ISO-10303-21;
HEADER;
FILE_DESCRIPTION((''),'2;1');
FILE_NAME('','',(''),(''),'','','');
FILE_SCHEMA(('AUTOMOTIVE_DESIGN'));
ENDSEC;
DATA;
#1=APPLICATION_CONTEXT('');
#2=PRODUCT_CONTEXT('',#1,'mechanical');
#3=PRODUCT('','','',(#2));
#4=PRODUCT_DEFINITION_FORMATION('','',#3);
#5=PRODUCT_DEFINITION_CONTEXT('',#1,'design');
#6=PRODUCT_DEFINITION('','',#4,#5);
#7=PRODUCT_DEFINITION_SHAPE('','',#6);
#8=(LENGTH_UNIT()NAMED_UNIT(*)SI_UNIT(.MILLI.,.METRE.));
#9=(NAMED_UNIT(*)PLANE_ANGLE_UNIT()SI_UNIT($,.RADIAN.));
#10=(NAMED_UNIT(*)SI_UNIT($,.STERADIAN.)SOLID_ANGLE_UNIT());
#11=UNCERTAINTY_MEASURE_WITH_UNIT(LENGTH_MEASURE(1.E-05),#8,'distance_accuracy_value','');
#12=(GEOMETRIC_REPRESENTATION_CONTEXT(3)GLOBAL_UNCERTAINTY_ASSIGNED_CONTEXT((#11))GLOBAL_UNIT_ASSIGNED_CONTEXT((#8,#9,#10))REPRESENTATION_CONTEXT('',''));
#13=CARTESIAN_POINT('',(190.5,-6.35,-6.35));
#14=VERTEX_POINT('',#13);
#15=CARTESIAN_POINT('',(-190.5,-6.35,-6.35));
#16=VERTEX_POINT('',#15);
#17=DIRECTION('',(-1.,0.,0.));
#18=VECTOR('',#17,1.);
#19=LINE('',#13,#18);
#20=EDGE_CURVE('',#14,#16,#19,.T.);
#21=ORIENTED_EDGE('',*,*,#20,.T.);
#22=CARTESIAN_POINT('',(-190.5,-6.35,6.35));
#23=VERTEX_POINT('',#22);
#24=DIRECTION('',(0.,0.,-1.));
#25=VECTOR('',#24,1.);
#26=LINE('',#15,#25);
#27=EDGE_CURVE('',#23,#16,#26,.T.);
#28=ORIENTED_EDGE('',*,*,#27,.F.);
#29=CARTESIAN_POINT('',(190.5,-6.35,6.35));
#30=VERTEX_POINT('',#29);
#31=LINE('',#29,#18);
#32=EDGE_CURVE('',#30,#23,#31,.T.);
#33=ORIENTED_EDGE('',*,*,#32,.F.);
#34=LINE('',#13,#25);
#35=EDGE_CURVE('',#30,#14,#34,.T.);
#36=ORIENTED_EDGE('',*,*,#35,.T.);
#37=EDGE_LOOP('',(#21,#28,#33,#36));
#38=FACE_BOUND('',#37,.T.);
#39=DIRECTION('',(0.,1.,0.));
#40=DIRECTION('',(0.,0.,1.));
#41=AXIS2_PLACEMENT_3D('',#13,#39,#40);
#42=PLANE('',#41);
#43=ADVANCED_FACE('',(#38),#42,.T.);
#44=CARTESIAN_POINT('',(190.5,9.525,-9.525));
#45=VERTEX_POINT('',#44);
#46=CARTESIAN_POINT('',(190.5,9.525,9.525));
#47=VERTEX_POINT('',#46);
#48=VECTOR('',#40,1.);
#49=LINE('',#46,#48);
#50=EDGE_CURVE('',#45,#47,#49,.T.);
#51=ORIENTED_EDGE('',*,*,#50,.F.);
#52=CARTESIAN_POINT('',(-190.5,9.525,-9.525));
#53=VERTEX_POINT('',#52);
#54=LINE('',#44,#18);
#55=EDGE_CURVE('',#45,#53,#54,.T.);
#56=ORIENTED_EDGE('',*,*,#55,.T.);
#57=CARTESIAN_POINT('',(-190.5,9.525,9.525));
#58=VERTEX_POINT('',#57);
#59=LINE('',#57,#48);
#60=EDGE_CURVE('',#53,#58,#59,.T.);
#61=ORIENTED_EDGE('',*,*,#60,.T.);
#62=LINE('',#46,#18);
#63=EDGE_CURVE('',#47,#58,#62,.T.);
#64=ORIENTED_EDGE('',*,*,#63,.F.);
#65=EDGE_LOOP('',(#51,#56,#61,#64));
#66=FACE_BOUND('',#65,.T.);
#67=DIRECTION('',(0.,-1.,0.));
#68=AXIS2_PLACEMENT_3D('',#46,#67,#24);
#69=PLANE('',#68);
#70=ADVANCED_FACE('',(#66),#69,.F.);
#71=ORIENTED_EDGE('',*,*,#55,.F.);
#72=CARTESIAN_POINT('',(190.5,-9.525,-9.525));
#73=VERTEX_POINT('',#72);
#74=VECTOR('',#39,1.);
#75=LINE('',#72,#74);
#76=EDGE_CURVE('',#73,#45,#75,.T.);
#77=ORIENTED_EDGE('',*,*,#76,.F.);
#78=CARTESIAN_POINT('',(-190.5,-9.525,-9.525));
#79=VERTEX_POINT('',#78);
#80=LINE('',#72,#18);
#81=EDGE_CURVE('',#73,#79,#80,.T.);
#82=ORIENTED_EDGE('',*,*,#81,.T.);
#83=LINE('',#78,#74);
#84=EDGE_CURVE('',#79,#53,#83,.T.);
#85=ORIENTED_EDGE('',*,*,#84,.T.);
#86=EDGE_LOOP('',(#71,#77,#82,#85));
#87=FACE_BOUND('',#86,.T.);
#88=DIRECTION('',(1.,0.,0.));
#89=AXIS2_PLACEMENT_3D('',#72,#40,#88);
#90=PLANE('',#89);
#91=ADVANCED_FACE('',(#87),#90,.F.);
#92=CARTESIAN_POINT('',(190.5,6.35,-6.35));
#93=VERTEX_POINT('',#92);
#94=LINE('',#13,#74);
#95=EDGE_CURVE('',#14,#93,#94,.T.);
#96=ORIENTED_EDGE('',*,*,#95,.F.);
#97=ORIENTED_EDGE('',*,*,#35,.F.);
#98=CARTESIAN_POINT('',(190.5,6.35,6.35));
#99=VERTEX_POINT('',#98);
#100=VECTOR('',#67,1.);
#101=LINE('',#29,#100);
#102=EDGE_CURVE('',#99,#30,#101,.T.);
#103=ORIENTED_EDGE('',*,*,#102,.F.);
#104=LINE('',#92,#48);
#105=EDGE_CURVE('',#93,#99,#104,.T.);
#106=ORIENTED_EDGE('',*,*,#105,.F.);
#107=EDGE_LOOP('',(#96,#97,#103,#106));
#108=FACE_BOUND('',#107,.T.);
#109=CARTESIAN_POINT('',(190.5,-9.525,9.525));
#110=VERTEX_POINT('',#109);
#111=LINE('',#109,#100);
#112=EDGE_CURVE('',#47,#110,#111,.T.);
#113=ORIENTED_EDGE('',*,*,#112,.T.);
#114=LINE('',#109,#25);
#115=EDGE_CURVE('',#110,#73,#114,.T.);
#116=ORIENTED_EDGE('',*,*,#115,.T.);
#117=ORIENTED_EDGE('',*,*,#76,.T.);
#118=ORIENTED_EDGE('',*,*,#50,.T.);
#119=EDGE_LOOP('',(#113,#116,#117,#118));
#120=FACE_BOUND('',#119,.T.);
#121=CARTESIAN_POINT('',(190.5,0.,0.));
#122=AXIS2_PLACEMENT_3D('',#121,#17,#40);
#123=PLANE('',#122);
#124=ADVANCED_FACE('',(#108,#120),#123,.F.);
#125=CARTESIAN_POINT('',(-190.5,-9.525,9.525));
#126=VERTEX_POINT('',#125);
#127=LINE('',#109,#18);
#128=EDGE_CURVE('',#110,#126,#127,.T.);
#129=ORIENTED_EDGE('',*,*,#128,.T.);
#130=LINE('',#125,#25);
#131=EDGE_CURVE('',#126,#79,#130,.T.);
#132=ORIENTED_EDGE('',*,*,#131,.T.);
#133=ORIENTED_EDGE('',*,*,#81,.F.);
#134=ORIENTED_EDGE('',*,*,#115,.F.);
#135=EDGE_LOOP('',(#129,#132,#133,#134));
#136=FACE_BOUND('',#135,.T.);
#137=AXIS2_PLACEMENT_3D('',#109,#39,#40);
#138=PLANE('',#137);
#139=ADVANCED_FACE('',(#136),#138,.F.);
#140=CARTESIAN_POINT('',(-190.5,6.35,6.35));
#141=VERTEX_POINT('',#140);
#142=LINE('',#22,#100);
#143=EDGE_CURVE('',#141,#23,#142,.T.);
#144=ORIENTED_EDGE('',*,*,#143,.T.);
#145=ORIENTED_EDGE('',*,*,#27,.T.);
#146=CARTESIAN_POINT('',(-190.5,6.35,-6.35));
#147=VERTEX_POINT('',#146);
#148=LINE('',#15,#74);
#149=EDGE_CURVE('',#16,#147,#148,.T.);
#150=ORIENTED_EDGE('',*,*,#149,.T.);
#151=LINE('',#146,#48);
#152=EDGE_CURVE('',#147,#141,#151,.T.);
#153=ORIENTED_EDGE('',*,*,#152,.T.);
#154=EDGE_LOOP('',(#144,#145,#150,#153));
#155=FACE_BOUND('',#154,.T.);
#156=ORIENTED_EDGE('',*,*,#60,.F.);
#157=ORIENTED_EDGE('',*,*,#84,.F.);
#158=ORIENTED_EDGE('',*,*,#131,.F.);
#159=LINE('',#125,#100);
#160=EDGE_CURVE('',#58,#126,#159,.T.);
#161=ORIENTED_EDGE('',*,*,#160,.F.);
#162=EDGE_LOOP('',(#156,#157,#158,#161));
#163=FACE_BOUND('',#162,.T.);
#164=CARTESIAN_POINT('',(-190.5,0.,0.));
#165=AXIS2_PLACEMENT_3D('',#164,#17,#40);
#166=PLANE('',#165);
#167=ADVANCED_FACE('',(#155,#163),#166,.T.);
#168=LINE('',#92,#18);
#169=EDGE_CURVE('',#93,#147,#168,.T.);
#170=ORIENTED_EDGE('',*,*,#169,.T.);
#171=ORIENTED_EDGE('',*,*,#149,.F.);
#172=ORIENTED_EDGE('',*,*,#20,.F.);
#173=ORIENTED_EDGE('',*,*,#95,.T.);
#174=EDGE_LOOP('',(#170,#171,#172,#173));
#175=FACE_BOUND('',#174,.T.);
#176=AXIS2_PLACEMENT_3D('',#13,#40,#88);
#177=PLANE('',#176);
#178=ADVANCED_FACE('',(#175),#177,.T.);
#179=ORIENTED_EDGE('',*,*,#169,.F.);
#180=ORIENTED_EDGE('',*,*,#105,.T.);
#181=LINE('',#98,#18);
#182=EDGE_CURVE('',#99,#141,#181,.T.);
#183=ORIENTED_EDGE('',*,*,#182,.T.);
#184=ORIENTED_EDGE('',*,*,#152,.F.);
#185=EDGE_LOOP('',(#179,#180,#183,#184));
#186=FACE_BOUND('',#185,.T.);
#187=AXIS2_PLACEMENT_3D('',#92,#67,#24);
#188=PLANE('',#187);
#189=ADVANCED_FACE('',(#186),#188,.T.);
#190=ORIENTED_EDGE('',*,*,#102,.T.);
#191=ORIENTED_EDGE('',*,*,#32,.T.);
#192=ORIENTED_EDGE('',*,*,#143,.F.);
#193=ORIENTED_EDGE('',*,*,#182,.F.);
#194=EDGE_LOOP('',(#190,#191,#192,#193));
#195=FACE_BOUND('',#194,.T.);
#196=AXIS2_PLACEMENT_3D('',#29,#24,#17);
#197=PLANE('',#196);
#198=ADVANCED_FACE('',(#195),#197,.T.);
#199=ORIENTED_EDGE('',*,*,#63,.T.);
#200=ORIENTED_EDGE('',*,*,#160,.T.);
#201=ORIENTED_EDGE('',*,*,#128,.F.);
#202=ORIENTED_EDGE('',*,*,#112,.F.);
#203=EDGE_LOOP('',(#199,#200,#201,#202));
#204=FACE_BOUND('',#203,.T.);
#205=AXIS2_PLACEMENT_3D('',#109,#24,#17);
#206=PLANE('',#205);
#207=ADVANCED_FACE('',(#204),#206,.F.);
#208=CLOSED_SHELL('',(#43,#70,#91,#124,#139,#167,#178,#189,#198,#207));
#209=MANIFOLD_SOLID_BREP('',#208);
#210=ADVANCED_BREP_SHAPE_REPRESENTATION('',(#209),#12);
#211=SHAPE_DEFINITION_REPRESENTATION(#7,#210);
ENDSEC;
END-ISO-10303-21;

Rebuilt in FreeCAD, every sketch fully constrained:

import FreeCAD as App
import Part
import Sketcher
Q = App.Units.Quantity


def add_polygon(sketch, points):
    """Adds a closed chain of lines whose ends are joined by coincident constraints."""
    first, n = sketch.GeometryCount, len(points)
    for a, b in zip(points, points[1:] + points[:1]):
        sketch.addGeometry(Part.LineSegment(App.Vector(*a, 0), App.Vector(*b, 0)), False)
    for i in range(n):
        sketch.addConstraint(Sketcher.Constraint("Coincident", first + i, 2, first + (i + 1) % n, 1))

doc = App.newDocument("Part")
body = doc.addObject("PartDesign::Body", "Body")

sketch1 = body.newObject("Sketcher::SketchObject", "Sketch")
sketch1.AttachmentSupport = (doc.getObject("YZ_Plane"), [""])
sketch1.MapMode = "FlatFace"
add_polygon(sketch1, [(9.525, 9.525), (-9.525, 9.525), (-9.525, -9.525), (9.525, -9.525)])
add_polygon(sketch1, [(-6.35, -6.35), (-6.35, 6.35), (6.35, 6.35), (6.35, -6.35)])
sketch1.addConstraint(Sketcher.Constraint("Horizontal", 0))
sketch1.addConstraint(Sketcher.Constraint("Vertical", 1))
sketch1.addConstraint(Sketcher.Constraint("Horizontal", 2))
sketch1.addConstraint(Sketcher.Constraint("Vertical", 3))
sketch1.addConstraint(Sketcher.Constraint("Vertical", 4))
sketch1.addConstraint(Sketcher.Constraint("Horizontal", 5))
sketch1.addConstraint(Sketcher.Constraint("Vertical", 6))
sketch1.addConstraint(Sketcher.Constraint("Horizontal", 7))
sketch1.addConstraint(Sketcher.Constraint("Symmetric", 0, 2, 2, 2, -1, 1))
sketch1.addConstraint(Sketcher.Constraint("Symmetric", 4, 2, 6, 2, -1, 1))
sketch1.addConstraint(Sketcher.Constraint("Equal", 2, 1))
sketch1.addConstraint(Sketcher.Constraint("Equal", 7, 4))
sketch1.addConstraint(Sketcher.Constraint("DistanceX", 5, 1, 5, 2, Q("0.5 in")))
sketch1.addConstraint(Sketcher.Constraint("DistanceX", 0, 2, 0, 1, Q("0.75 in")))
pad1 = body.newObject("PartDesign::Pad", "Pad")
pad1.Profile = sketch1
pad1.Length = Q("15 in")
pad1.Midplane = True

doc.recompute()
